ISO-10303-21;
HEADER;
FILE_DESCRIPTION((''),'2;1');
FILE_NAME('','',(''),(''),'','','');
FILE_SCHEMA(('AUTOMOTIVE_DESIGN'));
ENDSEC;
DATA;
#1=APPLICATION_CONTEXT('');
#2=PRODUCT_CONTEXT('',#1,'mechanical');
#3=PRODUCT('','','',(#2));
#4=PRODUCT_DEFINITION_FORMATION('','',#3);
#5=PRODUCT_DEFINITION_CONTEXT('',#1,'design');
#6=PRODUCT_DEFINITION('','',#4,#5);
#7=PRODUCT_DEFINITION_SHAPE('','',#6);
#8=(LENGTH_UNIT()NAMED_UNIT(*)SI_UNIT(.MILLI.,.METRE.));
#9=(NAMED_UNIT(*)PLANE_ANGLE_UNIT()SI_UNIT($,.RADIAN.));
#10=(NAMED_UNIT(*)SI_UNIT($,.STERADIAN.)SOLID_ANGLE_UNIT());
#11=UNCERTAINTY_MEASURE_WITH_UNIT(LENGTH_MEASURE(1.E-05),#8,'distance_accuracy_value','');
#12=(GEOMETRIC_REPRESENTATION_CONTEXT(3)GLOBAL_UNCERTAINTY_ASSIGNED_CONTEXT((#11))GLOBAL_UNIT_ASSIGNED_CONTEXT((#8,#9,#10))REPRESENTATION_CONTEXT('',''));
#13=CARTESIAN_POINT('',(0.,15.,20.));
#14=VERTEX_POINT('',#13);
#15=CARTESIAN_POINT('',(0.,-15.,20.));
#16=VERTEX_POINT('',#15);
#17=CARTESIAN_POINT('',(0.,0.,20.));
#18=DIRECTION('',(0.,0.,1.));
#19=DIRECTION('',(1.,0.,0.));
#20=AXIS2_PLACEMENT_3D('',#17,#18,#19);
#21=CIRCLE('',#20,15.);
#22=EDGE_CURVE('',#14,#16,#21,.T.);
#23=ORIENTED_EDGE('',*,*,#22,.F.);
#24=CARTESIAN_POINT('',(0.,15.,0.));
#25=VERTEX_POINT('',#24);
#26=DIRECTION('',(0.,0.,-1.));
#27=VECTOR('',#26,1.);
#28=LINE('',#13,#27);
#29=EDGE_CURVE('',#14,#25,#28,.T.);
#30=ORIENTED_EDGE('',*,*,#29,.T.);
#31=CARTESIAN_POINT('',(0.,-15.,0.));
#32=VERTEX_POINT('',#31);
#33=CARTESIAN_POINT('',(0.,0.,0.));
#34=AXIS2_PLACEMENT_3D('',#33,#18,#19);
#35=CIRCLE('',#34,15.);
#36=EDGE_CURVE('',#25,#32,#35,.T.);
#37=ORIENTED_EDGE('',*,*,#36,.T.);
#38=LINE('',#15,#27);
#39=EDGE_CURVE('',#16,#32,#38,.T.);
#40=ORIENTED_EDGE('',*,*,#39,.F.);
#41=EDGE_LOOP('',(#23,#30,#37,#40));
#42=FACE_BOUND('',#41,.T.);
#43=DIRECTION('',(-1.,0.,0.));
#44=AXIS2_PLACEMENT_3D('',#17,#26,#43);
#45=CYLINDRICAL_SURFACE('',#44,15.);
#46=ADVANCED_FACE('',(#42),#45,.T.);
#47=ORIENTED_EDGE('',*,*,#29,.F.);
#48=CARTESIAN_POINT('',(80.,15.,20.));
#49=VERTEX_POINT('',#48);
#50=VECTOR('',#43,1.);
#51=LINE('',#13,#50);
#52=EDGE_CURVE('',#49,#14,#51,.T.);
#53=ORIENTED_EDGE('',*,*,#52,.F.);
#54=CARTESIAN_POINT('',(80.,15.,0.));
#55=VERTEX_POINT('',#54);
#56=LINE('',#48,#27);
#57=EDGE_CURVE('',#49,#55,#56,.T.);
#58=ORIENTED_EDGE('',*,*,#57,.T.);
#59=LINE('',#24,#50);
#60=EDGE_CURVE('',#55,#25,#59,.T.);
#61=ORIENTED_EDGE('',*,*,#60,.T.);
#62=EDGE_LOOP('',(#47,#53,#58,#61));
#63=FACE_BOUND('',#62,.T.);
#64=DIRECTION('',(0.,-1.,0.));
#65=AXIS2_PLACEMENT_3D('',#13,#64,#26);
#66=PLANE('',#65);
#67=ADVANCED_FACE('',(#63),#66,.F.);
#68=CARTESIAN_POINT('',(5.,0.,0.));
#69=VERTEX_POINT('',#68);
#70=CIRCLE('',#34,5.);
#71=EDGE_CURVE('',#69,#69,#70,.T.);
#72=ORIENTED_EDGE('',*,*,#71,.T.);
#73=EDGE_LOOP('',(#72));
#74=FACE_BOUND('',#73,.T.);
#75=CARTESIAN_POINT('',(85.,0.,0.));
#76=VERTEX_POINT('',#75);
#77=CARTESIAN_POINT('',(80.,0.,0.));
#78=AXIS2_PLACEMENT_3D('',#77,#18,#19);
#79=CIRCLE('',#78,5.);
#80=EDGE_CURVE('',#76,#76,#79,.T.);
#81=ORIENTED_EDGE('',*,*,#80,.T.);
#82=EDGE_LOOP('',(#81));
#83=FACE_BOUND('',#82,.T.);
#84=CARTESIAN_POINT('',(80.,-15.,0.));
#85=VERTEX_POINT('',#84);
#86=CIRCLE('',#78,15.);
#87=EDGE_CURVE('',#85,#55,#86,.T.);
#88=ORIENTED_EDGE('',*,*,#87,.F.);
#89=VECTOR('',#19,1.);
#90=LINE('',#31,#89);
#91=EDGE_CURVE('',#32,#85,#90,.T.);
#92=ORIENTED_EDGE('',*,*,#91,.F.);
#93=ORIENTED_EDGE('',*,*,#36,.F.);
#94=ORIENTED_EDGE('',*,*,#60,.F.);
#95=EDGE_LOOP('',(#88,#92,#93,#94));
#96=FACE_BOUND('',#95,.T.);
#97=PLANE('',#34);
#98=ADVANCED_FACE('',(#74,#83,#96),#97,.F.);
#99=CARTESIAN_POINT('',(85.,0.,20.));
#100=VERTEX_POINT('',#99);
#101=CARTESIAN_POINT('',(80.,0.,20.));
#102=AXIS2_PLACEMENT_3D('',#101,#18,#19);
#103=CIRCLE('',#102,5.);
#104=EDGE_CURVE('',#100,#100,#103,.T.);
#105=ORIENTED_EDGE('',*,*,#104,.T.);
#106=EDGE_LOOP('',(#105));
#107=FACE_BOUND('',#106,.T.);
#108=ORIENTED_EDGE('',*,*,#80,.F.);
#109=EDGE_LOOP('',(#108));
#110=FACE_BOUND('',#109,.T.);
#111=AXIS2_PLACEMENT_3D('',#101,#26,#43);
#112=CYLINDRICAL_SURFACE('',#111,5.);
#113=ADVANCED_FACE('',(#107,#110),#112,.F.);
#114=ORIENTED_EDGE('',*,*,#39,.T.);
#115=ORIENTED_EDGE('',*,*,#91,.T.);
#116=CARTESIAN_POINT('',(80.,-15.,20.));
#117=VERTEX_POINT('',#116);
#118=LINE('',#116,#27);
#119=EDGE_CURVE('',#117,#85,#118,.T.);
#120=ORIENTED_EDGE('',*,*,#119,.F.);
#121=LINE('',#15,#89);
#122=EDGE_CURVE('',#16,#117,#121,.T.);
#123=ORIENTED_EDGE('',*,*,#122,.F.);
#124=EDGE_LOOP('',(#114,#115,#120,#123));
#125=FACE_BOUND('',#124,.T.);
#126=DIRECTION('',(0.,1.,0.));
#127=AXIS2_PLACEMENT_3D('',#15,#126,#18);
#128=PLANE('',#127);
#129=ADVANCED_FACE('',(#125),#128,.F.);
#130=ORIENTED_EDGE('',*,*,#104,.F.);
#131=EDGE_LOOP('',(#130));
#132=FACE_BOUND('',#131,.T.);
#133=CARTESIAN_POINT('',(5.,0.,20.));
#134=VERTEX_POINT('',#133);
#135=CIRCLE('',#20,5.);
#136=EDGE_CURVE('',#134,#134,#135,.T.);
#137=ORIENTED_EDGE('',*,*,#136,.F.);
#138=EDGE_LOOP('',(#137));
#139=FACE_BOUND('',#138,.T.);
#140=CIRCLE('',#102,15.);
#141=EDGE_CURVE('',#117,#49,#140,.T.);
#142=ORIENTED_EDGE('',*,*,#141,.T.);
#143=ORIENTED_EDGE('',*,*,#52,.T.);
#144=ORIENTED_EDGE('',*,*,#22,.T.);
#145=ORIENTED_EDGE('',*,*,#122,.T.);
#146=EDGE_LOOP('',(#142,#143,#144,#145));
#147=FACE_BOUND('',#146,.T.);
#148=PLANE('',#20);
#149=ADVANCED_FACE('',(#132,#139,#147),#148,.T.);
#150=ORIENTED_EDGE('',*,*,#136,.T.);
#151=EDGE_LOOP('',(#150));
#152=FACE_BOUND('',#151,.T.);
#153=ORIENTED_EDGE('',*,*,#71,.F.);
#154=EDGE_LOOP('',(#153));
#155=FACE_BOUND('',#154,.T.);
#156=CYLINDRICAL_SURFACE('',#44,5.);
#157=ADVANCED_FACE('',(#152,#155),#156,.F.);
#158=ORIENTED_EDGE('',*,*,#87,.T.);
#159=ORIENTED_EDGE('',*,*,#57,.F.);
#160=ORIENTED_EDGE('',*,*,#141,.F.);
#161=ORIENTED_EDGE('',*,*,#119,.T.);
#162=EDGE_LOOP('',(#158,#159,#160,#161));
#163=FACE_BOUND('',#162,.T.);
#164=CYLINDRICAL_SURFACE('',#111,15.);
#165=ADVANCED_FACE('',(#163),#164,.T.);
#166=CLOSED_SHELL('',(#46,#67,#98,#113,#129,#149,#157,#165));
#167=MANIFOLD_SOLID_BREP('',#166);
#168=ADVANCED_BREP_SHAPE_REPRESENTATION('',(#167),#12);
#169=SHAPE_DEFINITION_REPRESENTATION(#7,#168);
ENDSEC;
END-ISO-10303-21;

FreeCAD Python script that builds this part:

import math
import FreeCAD as App
import Part
import Sketcher

V = App.Vector
Q = App.Units.Quantity

doc = App.newDocument("Part")
body = doc.addObject("PartDesign::Body", "Body")

sketch1 = doc.addObject("Sketcher::SketchObject", "Sketch")
body.addObject(sketch1)
sketch1.AttachmentSupport = (doc.XY_Plane, [""])
sketch1.MapMode = "FlatFace"
sketch1.addGeometry([
    Part.LineSegment(V(80, 15, 0), V(0, 15, 0)),
    Part.ArcOfCircle(Part.Circle(V(0, 0, 0), V(0, 0, 1), 15), math.radians(90), math.radians(270)),
    Part.LineSegment(V(0, -15, 0), V(80, -15, 0)),
    Part.ArcOfCircle(Part.Circle(V(80, 0, 0), V(0, 0, 1), 15), math.radians(-90), math.radians(90)),
    Part.Circle(V(80, 0, 0), V(0, 0, 1), 5),
    Part.Circle(V(0, 0, 0), V(0, 0, 1), 5),
], False)
sketch1.addConstraint([
    Sketcher.Constraint("Tangent", 0, 2, 1, 1),
    Sketcher.Constraint("Tangent", 1, 2, 2, 1),
    Sketcher.Constraint("Tangent", 2, 2, 3, 1),
    Sketcher.Constraint("Tangent", 3, 2, 0, 1),
    Sketcher.Constraint("Horizontal", 0),
    Sketcher.Constraint("Horizontal", 2),
    Sketcher.Constraint("Coincident", 1, 3, -1, 1),
    Sketcher.Constraint("Coincident", 5, 3, -1, 1),
    Sketcher.Constraint("Coincident", 4, 3, 3, 3),
    Sketcher.Constraint("Equal", 4, 5),
    Sketcher.Constraint("Diameter", 4, Q("10 mm")),
    Sketcher.Constraint("Radius", 1, Q("15 mm")),
    Sketcher.Constraint("DistanceX", 0, 2, 0, 1, Q("80 mm")),
])
pad1 = doc.addObject("PartDesign::Pad", "Pad")
body.addObject(pad1)
pad1.Profile = sketch1
pad1.Length = 20

doc.recompute()
